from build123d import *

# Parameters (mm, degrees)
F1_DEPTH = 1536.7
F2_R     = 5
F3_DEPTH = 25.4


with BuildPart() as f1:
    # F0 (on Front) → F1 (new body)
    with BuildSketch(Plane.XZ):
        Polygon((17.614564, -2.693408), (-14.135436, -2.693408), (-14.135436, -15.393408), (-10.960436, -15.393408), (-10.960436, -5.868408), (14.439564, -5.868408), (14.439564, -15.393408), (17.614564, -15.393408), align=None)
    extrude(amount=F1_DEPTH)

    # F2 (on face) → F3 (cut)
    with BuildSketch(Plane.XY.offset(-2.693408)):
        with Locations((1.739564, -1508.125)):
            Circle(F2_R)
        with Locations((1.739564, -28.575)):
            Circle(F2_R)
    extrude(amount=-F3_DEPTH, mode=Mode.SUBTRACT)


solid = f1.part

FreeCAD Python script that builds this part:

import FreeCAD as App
import Part
import Sketcher
from FreeCAD import Vector
Q = App.Units.Quantity

doc = App.newDocument("Part")
body = doc.addObject("PartDesign::Body", "Body")

# Sketch on XZ plane
sketch1 = doc.addObject("Sketcher::SketchObject", "Sketch")
body.addObject(sketch1)
sketch1.AttachmentSupport = (doc.XZ_Plane, [""])
sketch1.MapMode = "FlatFace"
sketch1.addGeometry([
    Part.LineSegment(Vector(17.6, -2.7, 0), Vector(-14.1, -2.7, 0)),  # 0
    Part.LineSegment(Vector(-14.1, -2.7, 0), Vector(-14.1, -15.4, 0)),  # 1
    Part.LineSegment(Vector(-14.1, -15.4, 0), Vector(-11, -15.4, 0)),  # 2
    Part.LineSegment(Vector(-11, -15.4, 0), Vector(-11, -5.9, 0)),  # 3
    Part.LineSegment(Vector(-11, -5.9, 0), Vector(14.4, -5.9, 0)),  # 4
    Part.LineSegment(Vector(14.4, -5.9, 0), Vector(14.4, -15.4, 0)),  # 5
    Part.LineSegment(Vector(14.4, -15.4, 0), Vector(17.6, -15.4, 0)),  # 6
    Part.LineSegment(Vector(17.6, -15.4, 0), Vector(17.6, -2.7, 0)),  # 7
], False)
sketch1.addConstraint([
    Sketcher.Constraint("Coincident", 0, 2, 1, 1),
    Sketcher.Constraint("Coincident", 1, 2, 2, 1),
    Sketcher.Constraint("Coincident", 2, 2, 3, 1),
    Sketcher.Constraint("Coincident", 3, 2, 4, 1),
    Sketcher.Constraint("Coincident", 4, 2, 5, 1),
    Sketcher.Constraint("Coincident", 5, 2, 6, 1),
    Sketcher.Constraint("Coincident", 6, 2, 7, 1),
    Sketcher.Constraint("Coincident", 7, 2, 0, 1),
    Sketcher.Constraint("Horizontal", 0),
    Sketcher.Constraint("Vertical", 1),
    Sketcher.Constraint("Horizontal", 2),
    Sketcher.Constraint("Vertical", 3),
    Sketcher.Constraint("Horizontal", 4),
    Sketcher.Constraint("Vertical", 5),
    Sketcher.Constraint("Horizontal", 6),
    Sketcher.Constraint("Vertical", 7),
    Sketcher.Constraint("Horizontal", 2, 2, 5, 2),
    Sketcher.Constraint("Equal", 2, 6),
    Sketcher.Constraint("DistanceX", 4, 1, 4, 2, Q("1 in")),
    Sketcher.Constraint("DistanceY", 1, 2, 1, 1, Q("0.5 in")),
    Sketcher.Constraint("DistanceX", 0, 2, 0, 1, Q("1.25 in")),
    Sketcher.Constraint("DistanceY", 3, 1, 3, 2, Q("0.375 in")),
    Sketcher.Constraint("DistanceY", 1, 2, -1, 1, 15.393408),
    Sketcher.Constraint("DistanceX", 0, 2, -1, 1, 14.135436),
])
pad1 = doc.addObject("PartDesign::Pad", "Pad")
body.addObject(pad1)
pad1.Profile = sketch1
pad1.Length = Q("60.5 in")

# Sketch on XY plane
sketch2 = doc.addObject("Sketcher::SketchObject", "Sketch001")
body.addObject(sketch2)
sketch2.AttachmentSupport = (doc.XY_Plane, [""])
sketch2.MapMode = "FlatFace"
sketch2.AttachmentOffset = App.Placement(Vector(0, 0, -2.693408), App.Rotation())
sketch2.addGeometry([
    Part.Circle(Vector(2, -1508, 0), Vector(0, 0, 1), 5),
    Part.Circle(Vector(2, -29, 0), Vector(0, 0, 1), 5),
], False)
sketch2.addConstraint([
    Sketcher.Constraint("Equal", 0, 1),
    Sketcher.Constraint("Vertical", 0, 3, 1, 3),
    Sketcher.Constraint("Diameter", 0, 10.0),
    Sketcher.Constraint("DistanceY", 0, 3, 1, 3, Q("58.25 in")),
    Sketcher.Constraint("DistanceY", 0, 3, -1, 1, Q("59.375 in")),
    Sketcher.Constraint("DistanceX", -1, 1, 0, 3, 1.739564),
])
pocket1 = doc.addObject("PartDesign::Pocket", "Pocket")
body.addObject(pocket1)
pocket1.Profile = sketch2
pocket1.Length = Q("1 in")

doc.recompute()
